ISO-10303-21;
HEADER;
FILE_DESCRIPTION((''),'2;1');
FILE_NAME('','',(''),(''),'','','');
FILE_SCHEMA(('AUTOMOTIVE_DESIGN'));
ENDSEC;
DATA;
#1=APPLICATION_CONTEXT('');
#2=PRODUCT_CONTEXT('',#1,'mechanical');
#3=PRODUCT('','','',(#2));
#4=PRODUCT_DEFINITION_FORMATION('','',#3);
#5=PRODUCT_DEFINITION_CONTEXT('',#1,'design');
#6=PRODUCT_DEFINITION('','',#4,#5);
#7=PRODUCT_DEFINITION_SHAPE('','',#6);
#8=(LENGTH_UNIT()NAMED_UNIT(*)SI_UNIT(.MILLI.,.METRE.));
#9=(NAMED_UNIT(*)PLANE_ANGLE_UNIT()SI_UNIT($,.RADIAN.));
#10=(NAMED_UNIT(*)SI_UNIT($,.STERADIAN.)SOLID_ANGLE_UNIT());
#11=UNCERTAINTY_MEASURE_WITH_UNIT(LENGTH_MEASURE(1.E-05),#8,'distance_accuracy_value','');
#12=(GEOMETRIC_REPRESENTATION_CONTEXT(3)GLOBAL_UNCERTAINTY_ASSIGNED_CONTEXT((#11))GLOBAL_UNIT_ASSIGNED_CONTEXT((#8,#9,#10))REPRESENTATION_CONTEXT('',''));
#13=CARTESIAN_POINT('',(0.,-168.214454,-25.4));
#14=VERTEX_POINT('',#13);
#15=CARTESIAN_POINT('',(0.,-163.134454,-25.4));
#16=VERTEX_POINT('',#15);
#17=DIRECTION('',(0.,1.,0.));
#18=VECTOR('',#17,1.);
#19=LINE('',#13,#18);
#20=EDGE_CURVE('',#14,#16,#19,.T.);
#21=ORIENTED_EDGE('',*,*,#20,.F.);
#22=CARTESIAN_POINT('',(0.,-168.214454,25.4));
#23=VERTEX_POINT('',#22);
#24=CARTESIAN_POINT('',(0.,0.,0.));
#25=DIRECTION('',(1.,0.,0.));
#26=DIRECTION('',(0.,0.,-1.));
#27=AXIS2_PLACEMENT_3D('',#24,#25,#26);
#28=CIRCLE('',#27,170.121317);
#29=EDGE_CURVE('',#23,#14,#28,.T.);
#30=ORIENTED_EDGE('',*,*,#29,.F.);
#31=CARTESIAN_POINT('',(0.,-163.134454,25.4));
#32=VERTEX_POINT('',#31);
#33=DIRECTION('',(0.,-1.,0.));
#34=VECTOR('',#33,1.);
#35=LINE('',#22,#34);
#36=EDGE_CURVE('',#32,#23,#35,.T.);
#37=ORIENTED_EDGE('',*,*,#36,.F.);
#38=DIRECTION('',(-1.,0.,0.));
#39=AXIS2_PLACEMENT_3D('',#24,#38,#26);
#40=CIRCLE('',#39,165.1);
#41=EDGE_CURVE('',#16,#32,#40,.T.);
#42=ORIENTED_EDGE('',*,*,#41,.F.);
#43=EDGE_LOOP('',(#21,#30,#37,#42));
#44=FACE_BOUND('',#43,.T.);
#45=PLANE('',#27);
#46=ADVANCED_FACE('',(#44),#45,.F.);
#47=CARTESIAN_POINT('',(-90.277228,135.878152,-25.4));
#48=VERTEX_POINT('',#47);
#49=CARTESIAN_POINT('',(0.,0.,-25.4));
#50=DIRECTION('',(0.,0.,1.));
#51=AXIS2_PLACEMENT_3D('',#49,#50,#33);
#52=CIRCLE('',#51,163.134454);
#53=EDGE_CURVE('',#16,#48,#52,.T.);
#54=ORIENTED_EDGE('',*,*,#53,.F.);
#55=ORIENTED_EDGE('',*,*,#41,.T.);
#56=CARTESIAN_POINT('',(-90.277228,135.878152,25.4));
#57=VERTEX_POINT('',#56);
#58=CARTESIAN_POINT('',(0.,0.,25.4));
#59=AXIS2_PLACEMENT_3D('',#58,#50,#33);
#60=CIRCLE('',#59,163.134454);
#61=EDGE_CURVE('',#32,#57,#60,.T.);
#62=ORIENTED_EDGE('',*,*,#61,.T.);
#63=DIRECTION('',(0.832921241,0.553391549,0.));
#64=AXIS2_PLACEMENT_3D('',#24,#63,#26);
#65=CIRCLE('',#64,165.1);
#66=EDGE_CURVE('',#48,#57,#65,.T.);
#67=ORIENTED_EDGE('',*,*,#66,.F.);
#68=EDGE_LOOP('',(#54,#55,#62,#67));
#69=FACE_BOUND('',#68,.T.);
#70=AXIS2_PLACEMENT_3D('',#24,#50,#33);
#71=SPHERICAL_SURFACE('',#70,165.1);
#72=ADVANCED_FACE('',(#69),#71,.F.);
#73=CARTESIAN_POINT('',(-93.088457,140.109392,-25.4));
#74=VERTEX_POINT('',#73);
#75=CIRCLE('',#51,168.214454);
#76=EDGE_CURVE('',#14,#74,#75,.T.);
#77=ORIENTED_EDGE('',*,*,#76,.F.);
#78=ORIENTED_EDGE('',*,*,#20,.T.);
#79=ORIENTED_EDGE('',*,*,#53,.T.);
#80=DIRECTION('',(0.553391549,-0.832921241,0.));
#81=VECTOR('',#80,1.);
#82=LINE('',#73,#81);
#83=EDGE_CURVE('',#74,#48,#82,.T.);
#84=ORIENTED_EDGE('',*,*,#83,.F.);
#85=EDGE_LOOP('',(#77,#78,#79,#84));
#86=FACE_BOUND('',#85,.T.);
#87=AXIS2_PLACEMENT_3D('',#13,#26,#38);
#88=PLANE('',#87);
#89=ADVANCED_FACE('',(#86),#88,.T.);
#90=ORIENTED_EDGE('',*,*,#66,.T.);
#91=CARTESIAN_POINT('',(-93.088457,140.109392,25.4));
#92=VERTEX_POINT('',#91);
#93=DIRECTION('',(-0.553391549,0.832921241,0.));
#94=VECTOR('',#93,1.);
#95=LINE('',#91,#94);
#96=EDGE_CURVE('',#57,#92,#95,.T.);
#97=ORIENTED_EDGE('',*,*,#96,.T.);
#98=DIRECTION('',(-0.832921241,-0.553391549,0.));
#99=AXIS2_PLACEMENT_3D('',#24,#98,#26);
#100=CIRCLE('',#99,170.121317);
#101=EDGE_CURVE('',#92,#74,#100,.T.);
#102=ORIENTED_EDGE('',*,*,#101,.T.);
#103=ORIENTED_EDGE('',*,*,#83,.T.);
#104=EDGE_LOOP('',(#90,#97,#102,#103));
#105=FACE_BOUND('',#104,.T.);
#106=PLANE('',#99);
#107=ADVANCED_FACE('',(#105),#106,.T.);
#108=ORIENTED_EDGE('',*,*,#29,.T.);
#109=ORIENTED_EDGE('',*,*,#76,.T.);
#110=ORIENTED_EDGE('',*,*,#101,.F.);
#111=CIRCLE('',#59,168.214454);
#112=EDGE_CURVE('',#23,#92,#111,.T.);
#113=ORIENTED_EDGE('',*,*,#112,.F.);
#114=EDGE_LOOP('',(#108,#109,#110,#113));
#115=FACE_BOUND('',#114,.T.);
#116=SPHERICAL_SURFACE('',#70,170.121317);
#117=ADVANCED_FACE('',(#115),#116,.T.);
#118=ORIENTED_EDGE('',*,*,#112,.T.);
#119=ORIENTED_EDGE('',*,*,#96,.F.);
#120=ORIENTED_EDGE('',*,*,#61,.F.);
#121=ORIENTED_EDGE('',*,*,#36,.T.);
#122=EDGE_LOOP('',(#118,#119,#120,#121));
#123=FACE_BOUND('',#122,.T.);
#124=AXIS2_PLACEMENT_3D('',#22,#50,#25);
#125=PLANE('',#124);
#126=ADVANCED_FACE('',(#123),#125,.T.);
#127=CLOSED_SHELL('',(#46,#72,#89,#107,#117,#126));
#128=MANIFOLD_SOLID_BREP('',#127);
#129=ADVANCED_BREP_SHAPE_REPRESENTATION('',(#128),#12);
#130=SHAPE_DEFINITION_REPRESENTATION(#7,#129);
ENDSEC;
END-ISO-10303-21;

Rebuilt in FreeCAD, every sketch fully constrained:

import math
import FreeCAD as App
import Part
import Sketcher

V = App.Vector
Q = App.Units.Quantity

doc = App.newDocument("Part")
body = doc.addObject("PartDesign::Body", "Body")

# Sketch on YZ plane
sketch1 = doc.addObject("Sketcher::SketchObject", "Sketch")
body.addObject(sketch1)
sketch1.AttachmentSupport = (doc.YZ_Plane, [""])
sketch1.MapMode = "FlatFace"
sketch1.addGeometry([
    Part.LineSegment(V(-163, 25, 0), V(-168, 25, 0)),
    Part.ArcOfCircle(Part.Circle(V(0, 0, 0), V(0, 0, 1), 170), math.radians(171.41), math.radians(188.59)),
    Part.LineSegment(V(-168, -25, 0), V(-163, -25, 0)),
    Part.ArcOfCircle(Part.Circle(V(0, 0, 0), V(0, 0, 1), 165), math.radians(171.15), math.radians(188.85)),
], False)
sketch1.addConstraint([
    Sketcher.Constraint("Coincident", 0, 2, 1, 1),
    Sketcher.Constraint("Coincident", 1, 2, 2, 1),
    Sketcher.Constraint("Coincident", 2, 2, 3, 2),
    Sketcher.Constraint("Coincident", 3, 1, 0, 1),
    Sketcher.Constraint("Horizontal", 0),
    Sketcher.Constraint("Horizontal", 2),
    Sketcher.Constraint("Coincident", 1, 3, -1, 1),
    Sketcher.Constraint("Coincident", 3, 3, -1, 1),
    Sketcher.Constraint("Vertical", 0, 2, 1, 2),
    Sketcher.Constraint("Radius", 3, Q("6.5 in")),
    Sketcher.Constraint("DistanceX", 0, 2, 0, 1, Q("0.2 in")),
    Sketcher.Constraint("DistanceY", -1, 1, 0, 2, Q("1 in")),
])

# Sketch on XY plane
sketch2 = doc.addObject("Sketcher::SketchObject", "Sketch001")
body.addObject(sketch2)
sketch2.AttachmentSupport = (doc.XY_Plane, [""])
sketch2.MapMode = "FlatFace"
sketch2.addGeometry(Part.ArcOfCircle(Part.Circle(V(0, 0, 0), V(0, 0, 1), 164), math.radians(-90), math.radians(124)), False)
sketch2.addConstraint([
    Sketcher.Constraint("Coincident", 0, 3, -1, 1),
    Sketcher.Constraint("PointOnObject", 0, 1, -2),
    Sketcher.Constraint("Radius", 0, 164.117227),
    Sketcher.Constraint("DistanceY", 0, 1, 0, 2, 300.813951),
])
doc.recompute()

additivepipe = doc.addObject("PartDesign::AdditivePipe", "AdditivePipe")
body.addObject(additivepipe)
additivepipe.Profile = sketch1
additivepipe.Spine = (sketch2, ["Edge1"])

doc.recompute()
